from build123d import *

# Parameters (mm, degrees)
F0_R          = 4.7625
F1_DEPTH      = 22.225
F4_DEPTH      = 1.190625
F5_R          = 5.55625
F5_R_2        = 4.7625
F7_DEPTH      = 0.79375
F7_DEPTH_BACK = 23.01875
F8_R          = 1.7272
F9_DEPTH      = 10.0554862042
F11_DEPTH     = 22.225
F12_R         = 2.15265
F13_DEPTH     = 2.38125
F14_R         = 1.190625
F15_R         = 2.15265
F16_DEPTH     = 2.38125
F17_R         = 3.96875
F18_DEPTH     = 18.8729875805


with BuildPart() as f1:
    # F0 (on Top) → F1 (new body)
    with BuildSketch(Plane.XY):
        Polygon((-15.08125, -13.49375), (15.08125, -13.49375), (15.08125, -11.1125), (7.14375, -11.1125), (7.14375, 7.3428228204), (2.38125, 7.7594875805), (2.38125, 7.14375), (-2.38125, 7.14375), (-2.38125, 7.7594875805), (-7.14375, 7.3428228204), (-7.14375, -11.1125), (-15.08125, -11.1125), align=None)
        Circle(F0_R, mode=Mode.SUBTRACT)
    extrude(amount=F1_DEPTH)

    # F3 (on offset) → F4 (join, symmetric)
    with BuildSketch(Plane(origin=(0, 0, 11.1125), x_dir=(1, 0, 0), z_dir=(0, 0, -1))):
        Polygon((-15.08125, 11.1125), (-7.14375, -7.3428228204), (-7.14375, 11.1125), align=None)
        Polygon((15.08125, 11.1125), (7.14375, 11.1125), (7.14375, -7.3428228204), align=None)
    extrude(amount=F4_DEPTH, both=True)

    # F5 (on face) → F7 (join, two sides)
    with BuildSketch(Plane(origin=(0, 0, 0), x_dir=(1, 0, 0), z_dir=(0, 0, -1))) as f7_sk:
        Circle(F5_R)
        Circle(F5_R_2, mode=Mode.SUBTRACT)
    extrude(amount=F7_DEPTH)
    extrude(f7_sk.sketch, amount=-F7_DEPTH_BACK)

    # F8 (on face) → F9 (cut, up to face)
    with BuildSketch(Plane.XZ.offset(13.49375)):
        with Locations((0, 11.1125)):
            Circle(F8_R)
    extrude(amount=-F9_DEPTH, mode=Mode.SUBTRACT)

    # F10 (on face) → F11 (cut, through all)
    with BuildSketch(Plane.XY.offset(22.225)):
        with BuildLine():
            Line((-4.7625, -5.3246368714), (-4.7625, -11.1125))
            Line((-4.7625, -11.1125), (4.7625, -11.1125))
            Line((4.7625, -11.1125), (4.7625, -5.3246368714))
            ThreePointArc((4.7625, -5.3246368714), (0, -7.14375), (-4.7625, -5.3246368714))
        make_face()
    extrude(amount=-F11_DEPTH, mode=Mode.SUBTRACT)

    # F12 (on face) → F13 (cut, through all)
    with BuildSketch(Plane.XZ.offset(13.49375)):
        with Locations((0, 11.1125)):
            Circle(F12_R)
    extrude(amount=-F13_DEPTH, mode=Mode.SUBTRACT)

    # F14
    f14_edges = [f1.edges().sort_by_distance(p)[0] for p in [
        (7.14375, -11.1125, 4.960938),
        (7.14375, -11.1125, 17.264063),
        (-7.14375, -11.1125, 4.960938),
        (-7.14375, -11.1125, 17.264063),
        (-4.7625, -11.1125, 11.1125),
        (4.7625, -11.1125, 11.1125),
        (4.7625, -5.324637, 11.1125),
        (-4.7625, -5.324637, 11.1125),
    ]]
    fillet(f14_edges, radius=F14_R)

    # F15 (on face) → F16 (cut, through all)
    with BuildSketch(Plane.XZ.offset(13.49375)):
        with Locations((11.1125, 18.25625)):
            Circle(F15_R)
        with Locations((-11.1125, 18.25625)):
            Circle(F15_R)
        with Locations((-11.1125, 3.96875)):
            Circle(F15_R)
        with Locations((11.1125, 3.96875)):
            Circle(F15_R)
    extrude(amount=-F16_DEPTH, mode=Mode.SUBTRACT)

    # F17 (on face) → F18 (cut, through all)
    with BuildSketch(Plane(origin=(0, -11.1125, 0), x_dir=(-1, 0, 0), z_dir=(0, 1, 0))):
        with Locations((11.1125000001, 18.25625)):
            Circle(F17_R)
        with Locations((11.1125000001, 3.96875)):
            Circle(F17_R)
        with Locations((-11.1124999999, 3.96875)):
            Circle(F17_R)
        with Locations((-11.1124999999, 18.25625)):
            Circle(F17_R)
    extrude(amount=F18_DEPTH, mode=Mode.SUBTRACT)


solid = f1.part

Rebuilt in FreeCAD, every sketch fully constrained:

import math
import FreeCAD as App
import Part
import Sketcher

V = App.Vector
Q = App.Units.Quantity


def edges_at(feature, points):
    """Names of the edges that pass closest to the given points."""
    edges = feature.Shape.Edges
    near = lambda p: min(range(len(edges)), key=lambda i: edges[i].distToShape(Part.Vertex(*p))[0])
    return sorted({f"Edge{near(p) + 1}" for p in points})


def add_polygon(sketch, points):
    """Adds a closed chain of lines whose ends are joined by coincident constraints."""
    first, n = sketch.GeometryCount, len(points)
    for a, b in zip(points, points[1:] + points[:1]):
        sketch.addGeometry(Part.LineSegment(App.Vector(*a, 0), App.Vector(*b, 0)), False)
    for i in range(n):
        sketch.addConstraint(Sketcher.Constraint("Coincident", first + i, 2, first + (i + 1) % n, 1))

doc = App.newDocument("Part")
body = doc.addObject("PartDesign::Body", "Body")

# Sketch on XY plane
sketch1 = body.newObject("Sketcher::SketchObject", "Sketch")
sketch1.AttachmentSupport = (doc.getObject("XY_Plane"), [""])
sketch1.MapMode = "FlatFace"
add_polygon(sketch1, [(-15.1, -13.5), (15.1, -13.5), (15.1, -11.1), (7.1, -11.1), (7.1, 7.3), (2.4, 7.8), (2.4, 7.1), (-2.4, 7.1), (-2.4, 7.8), (-7.1, 7.3), (-7.1, -11.1), (-15.1, -11.1)])  # lines 0-11
sketch1.addGeometry(Part.Circle(V(0, 0, 0), V(0, 0, 1), 4.8), False)  # 12
sketch1.addConstraint(Sketcher.Constraint("Horizontal", 0))
sketch1.addConstraint(Sketcher.Constraint("Vertical", 1))
sketch1.addConstraint(Sketcher.Constraint("Horizontal", 2))
sketch1.addConstraint(Sketcher.Constraint("Vertical", 3))
sketch1.addConstraint(Sketcher.Constraint("Vertical", 5))
sketch1.addConstraint(Sketcher.Constraint("Horizontal", 6))
sketch1.addConstraint(Sketcher.Constraint("Vertical", 7))
sketch1.addConstraint(Sketcher.Constraint("Vertical", 9))
sketch1.addConstraint(Sketcher.Constraint("Horizontal", 10))
sketch1.addConstraint(Sketcher.Constraint("Vertical", 11))
sketch1.addConstraint(Sketcher.Constraint("Coincident", 12, 3, -1, 1))
sketch1.addConstraint(Sketcher.Constraint("Symmetric", 4, 2, 7, 2, -2))
sketch1.addConstraint(Sketcher.Constraint("Symmetric", 3, 2, 8, 2, -2))
sketch1.addConstraint(Sketcher.Constraint("Symmetric", 1, 2, 10, 2, -2))
sketch1.addConstraint(Sketcher.Constraint("Diameter", 12, Q("0.375 in")))
sketch1.addConstraint(Sketcher.Constraint("Angle", 4, Q("175 deg")))
sketch1.addConstraint(Sketcher.Constraint("DistanceX", 4, 2, 1, 2, Q("0.5 in")))
sketch1.addConstraint(Sketcher.Constraint("DistanceX", 0, 1, 0, 2, Q("1.1875 in")))
sketch1.addConstraint(Sketcher.Constraint("DistanceX", 2, 2, 2, 1, Q("0.3125 in")))
sketch1.addConstraint(Sketcher.Constraint("DistanceY", 1, 1, 1, 2, Q("0.09375 in")))
sketch1.addConstraint(Sketcher.Constraint("DistanceY", 0, 2, -1, 1, Q("0.53125 in")))
sketch1.addConstraint(Sketcher.Constraint("DistanceY", -1, 1, 5, 2, Q("0.28125 in")))
sketch1.addConstraint(Sketcher.Constraint("DistanceY", 3, 1, 3, 2, Q("18.455323 mm")))
pad1 = body.newObject("PartDesign::Pad", "Pad")
pad1.Profile = sketch1
pad1.Length = Q("0.875 in")

# Sketch on XY plane
sketch2 = body.newObject("Sketcher::SketchObject", "Sketch001")
sketch2.AttachmentSupport = (doc.getObject("XY_Plane"), [""])
sketch2.MapMode = "FlatFace"
sketch2.AttachmentOffset = App.Placement(V(0, 0, 0.4375 * 25.4), App.Rotation())
add_polygon(sketch2, [(-15, -11), (-7, 7), (-7, -11)])  # lines 0-2
add_polygon(sketch2, [(15, -11), (7, -11), (7, 7)])  # lines 3-5
sketch2.addConstraint(Sketcher.Constraint("Vertical", 1))
sketch2.addConstraint(Sketcher.Constraint("Horizontal", 2))
sketch2.addConstraint(Sketcher.Constraint("Horizontal", 3))
sketch2.addConstraint(Sketcher.Constraint("Vertical", 4))
sketch2.addConstraint(Sketcher.Constraint("Symmetric", 1, 2, 3, 2, -2))
sketch2.addConstraint(Sketcher.Constraint("Horizontal", 0, 2, 4, 2))
sketch2.addConstraint(Sketcher.Constraint("Equal", 2, 3))
sketch2.addConstraint(Sketcher.Constraint("DistanceX", 2, 2, 2, 1, Q("0.3125 in")))
sketch2.addConstraint(Sketcher.Constraint("DistanceX", 0, 2, -1, 1, Q("0.28125 in")))
sketch2.addConstraint(Sketcher.Constraint("DistanceY", 1, 2, -1, 1, Q("0.4375 in")))
sketch2.addConstraint(Sketcher.Constraint("Distance", 0, Q("20.089869 mm")))
pad2 = body.newObject("PartDesign::Pad", "Pad001")
pad2.Profile = sketch2
pad2.Length = Q("0.09375 in")
pad2.Midplane = True

# Sketch on XY plane
sketch3 = body.newObject("Sketcher::SketchObject", "Sketch002")
sketch3.AttachmentSupport = (doc.getObject("XY_Plane"), [""])
sketch3.MapMode = "FlatFace"
sketch3.addGeometry(Part.Circle(V(0, 0, 0), V(0, 0, 1), 5.6), False)
sketch3.addGeometry(Part.Circle(V(0, 0, 0), V(0, 0, 1), 4.8), False)
sketch3.addConstraint(Sketcher.Constraint("Coincident", 0, 3, -1, 1))
sketch3.addConstraint(Sketcher.Constraint("Coincident", 1, 3, -1, 1))
sketch3.addConstraint(Sketcher.Constraint("Diameter", 0, Q("0.4375 in")))
sketch3.addConstraint(Sketcher.Constraint("Diameter", 1, Q("0.375 in")))
pad3 = body.newObject("PartDesign::Pad", "Pad002")
pad3.Profile = sketch3
pad3.Type = "TwoLengths"
pad3.Length = Q("0.03125 in")
pad3.Length2 = Q("0.90625 in")
pad3.Reversed = True

# Sketch on XZ plane
sketch4 = body.newObject("Sketcher::SketchObject", "Sketch003")
sketch4.AttachmentSupport = (doc.getObject("XZ_Plane"), [""])
sketch4.MapMode = "FlatFace"
sketch4.AttachmentOffset = App.Placement(V(0, 0, 0.53125 * 25.4), App.Rotation())
sketch4.addGeometry(Part.Circle(V(0, 11.1, 0), V(0, 0, 1), 1.7), False)
sketch4.addConstraint(Sketcher.Constraint("PointOnObject", 0, 3, -2))
sketch4.addConstraint(Sketcher.Constraint("Diameter", 0, Q("0.136 in")))
sketch4.addConstraint(Sketcher.Constraint("DistanceY", -1, 1, 0, 3, Q("0.4375 in")))
pocket1 = body.newObject("PartDesign::Pocket", "Pocket")
pocket1.Profile = sketch4
pocket1.Length = 10.055486

# Sketch on XY plane
sketch5 = body.newObject("Sketcher::SketchObject", "Sketch004")
sketch5.AttachmentSupport = (doc.getObject("XY_Plane"), [""])
sketch5.MapMode = "FlatFace"
sketch5.AttachmentOffset = App.Placement(V(0, 0, 0.875 * 25.4), App.Rotation())
sketch5.addGeometry(Part.LineSegment(V(-5, -5, 0), V(-5, -11, 0)), False)
sketch5.addGeometry(Part.LineSegment(V(-5, -11, 0), V(5, -11, 0)), False)
sketch5.addGeometry(Part.LineSegment(V(5, -11, 0), V(5, -5, 0)), False)
sketch5.addGeometry(Part.ArcOfCircle(Part.Circle(V(0, 0, 0), V(0, 0, 1), 7), math.radians(-132), math.radians(-48)), False)
sketch5.addConstraint(Sketcher.Constraint("Coincident", 0, 2, 1, 1))
sketch5.addConstraint(Sketcher.Constraint("Coincident", 1, 2, 2, 1))
sketch5.addConstraint(Sketcher.Constraint("Coincident", 2, 2, 3, 2))
sketch5.addConstraint(Sketcher.Constraint("Coincident", 3, 1, 0, 1))
sketch5.addConstraint(Sketcher.Constraint("Vertical", 0))
sketch5.addConstraint(Sketcher.Constraint("Horizontal", 1))
sketch5.addConstraint(Sketcher.Constraint("Vertical", 2))
sketch5.addConstraint(Sketcher.Constraint("Coincident", 3, 3, -1, 1))
sketch5.addConstraint(Sketcher.Constraint("Horizontal", 2, 2, 3, 1))
sketch5.addConstraint(Sketcher.Constraint("Radius", 3, Q("0.28125 in")))
sketch5.addConstraint(Sketcher.Constraint("DistanceX", 1, 1, 1, 2, Q("0.375 in")))
sketch5.addConstraint(Sketcher.Constraint("DistanceY", 0, 2, -1, 1, Q("0.4375 in")))
pocket2 = body.newObject("PartDesign::Pocket", "Pocket001")
pocket2.Profile = sketch5
pocket2.Type = "ThroughAll"

# Sketch on XZ plane
sketch6 = body.newObject("Sketcher::SketchObject", "Sketch005")
sketch6.AttachmentSupport = (doc.getObject("XZ_Plane"), [""])
sketch6.MapMode = "FlatFace"
sketch6.AttachmentOffset = App.Placement(V(0, 0, 0.53125 * 25.4), App.Rotation())
sketch6.addGeometry(Part.Circle(V(0, 11.1, 0), V(0, 0, 1), 2.2), False)
sketch6.addConstraint(Sketcher.Constraint("PointOnObject", 0, 3, -2))
sketch6.addConstraint(Sketcher.Constraint("Diameter", 0, Q("0.1695 in")))
sketch6.addConstraint(Sketcher.Constraint("DistanceY", -1, 1, 0, 3, Q("0.4375 in")))
pocket3 = body.newObject("PartDesign::Pocket", "Pocket002")
pocket3.Profile = sketch6
pocket3.Length = Q("0.09375 in")
doc.recompute()

fillet = body.newObject("PartDesign::Fillet", "Fillet")
fillet.Base = (pocket3, edges_at(pocket3, [
    (7.144, -11.113, 4.961),
    (7.144, -11.113, 17.264),
    (-7.144, -11.113, 4.961),
    (-7.144, -11.113, 17.264),
    (-4.763, -11.113, 11.113),
    (4.763, -11.113, 11.113),
    (4.763, -5.325, 11.113),
    (-4.763, -5.325, 11.113),
]))
fillet.Radius = Q("0.046875 in")

# Sketch on XZ plane
sketch7 = body.newObject("Sketcher::SketchObject", "Sketch006")
sketch7.AttachmentSupport = (doc.getObject("XZ_Plane"), [""])
sketch7.MapMode = "FlatFace"
sketch7.AttachmentOffset = App.Placement(V(0, 0, 0.53125 * 25.4), App.Rotation())
sketch7.addGeometry(Part.Circle(V(11.1, 18.3, 0), V(0, 0, 1), 2.2), False)
sketch7.addGeometry(Part.Circle(V(-11.1, 18.3, 0), V(0, 0, 1), 2.2), False)
sketch7.addGeometry(Part.Circle(V(-11.1, 4, 0), V(0, 0, 1), 2.2), False)
sketch7.addGeometry(Part.Circle(V(11.1, 4, 0), V(0, 0, 1), 2.2), False)
sketch7.addConstraint(Sketcher.Constraint("Equal", 0, 1))
sketch7.addConstraint(Sketcher.Constraint("Equal", 1, 2))
sketch7.addConstraint(Sketcher.Constraint("Equal", 2, 3))
sketch7.addConstraint(Sketcher.Constraint("Symmetric", 0, 3, 1, 3, -2))
sketch7.addConstraint(Sketcher.Constraint("Symmetric", 2, 3, 3, 3, -2))
sketch7.addConstraint(Sketcher.Constraint("Vertical", 1, 3, 2, 3))
sketch7.addConstraint(Sketcher.Constraint("Diameter", 0, Q("0.1695 in")))
sketch7.addConstraint(Sketcher.Constraint("DistanceX", -1, 1, 0, 3, Q("0.4375 in")))
sketch7.addConstraint(Sketcher.Constraint("DistanceY", -1, 1, 0, 3, Q("0.71875 in")))
sketch7.addConstraint(Sketcher.Constraint("DistanceY", -1, 1, 2, 3, Q("0.15625 in")))
pocket4 = body.newObject("PartDesign::Pocket", "Pocket003")
pocket4.Profile = sketch7
pocket4.Type = "ThroughAll"

# Sketch on XZ plane
sketch8 = body.newObject("Sketcher::SketchObject", "Sketch007")
sketch8.AttachmentSupport = (doc.getObject("XZ_Plane"), [""])
sketch8.MapMode = "FlatFace"
sketch8.AttachmentOffset = App.Placement(V(0, 0, 0.4375 * 25.4), App.Rotation())
sketch8.addGeometry(Part.Circle(V(-11.1, 18.3, 0), V(0, 0, 1), 4), False)
sketch8.addGeometry(Part.Circle(V(-11.1, 4, 0), V(0, 0, 1), 4), False)
sketch8.addGeometry(Part.Circle(V(11.1, 4, 0), V(0, 0, 1), 4), False)
sketch8.addGeometry(Part.Circle(V(11.1, 18.3, 0), V(0, 0, 1), 4), False)
sketch8.addConstraint(Sketcher.Constraint("Equal", 0, 1))
sketch8.addConstraint(Sketcher.Constraint("Equal", 1, 2))
sketch8.addConstraint(Sketcher.Constraint("Equal", 2, 3))
sketch8.addConstraint(Sketcher.Constraint("Symmetric", 1, 3, 2, 3, -2))
sketch8.addConstraint(Sketcher.Constraint("Symmetric", 0, 3, 3, 3, -2))
sketch8.addConstraint(Sketcher.Constraint("Vertical", 0, 3, 1, 3))
sketch8.addConstraint(Sketcher.Constraint("Diameter", 0, Q("0.3125 in")))
sketch8.addConstraint(Sketcher.Constraint("DistanceX", 0, 3, -1, 1, Q("0.4375 in")))
sketch8.addConstraint(Sketcher.Constraint("DistanceY", -1, 1, 0, 3, Q("0.71875 in")))
sketch8.addConstraint(Sketcher.Constraint("DistanceY", -1, 1, 1, 3, Q("0.15625 in")))
pocket5 = body.newObject("PartDesign::Pocket", "Pocket004")
pocket5.Profile = sketch8
pocket5.Type = "ThroughAll"

doc.recompute()
